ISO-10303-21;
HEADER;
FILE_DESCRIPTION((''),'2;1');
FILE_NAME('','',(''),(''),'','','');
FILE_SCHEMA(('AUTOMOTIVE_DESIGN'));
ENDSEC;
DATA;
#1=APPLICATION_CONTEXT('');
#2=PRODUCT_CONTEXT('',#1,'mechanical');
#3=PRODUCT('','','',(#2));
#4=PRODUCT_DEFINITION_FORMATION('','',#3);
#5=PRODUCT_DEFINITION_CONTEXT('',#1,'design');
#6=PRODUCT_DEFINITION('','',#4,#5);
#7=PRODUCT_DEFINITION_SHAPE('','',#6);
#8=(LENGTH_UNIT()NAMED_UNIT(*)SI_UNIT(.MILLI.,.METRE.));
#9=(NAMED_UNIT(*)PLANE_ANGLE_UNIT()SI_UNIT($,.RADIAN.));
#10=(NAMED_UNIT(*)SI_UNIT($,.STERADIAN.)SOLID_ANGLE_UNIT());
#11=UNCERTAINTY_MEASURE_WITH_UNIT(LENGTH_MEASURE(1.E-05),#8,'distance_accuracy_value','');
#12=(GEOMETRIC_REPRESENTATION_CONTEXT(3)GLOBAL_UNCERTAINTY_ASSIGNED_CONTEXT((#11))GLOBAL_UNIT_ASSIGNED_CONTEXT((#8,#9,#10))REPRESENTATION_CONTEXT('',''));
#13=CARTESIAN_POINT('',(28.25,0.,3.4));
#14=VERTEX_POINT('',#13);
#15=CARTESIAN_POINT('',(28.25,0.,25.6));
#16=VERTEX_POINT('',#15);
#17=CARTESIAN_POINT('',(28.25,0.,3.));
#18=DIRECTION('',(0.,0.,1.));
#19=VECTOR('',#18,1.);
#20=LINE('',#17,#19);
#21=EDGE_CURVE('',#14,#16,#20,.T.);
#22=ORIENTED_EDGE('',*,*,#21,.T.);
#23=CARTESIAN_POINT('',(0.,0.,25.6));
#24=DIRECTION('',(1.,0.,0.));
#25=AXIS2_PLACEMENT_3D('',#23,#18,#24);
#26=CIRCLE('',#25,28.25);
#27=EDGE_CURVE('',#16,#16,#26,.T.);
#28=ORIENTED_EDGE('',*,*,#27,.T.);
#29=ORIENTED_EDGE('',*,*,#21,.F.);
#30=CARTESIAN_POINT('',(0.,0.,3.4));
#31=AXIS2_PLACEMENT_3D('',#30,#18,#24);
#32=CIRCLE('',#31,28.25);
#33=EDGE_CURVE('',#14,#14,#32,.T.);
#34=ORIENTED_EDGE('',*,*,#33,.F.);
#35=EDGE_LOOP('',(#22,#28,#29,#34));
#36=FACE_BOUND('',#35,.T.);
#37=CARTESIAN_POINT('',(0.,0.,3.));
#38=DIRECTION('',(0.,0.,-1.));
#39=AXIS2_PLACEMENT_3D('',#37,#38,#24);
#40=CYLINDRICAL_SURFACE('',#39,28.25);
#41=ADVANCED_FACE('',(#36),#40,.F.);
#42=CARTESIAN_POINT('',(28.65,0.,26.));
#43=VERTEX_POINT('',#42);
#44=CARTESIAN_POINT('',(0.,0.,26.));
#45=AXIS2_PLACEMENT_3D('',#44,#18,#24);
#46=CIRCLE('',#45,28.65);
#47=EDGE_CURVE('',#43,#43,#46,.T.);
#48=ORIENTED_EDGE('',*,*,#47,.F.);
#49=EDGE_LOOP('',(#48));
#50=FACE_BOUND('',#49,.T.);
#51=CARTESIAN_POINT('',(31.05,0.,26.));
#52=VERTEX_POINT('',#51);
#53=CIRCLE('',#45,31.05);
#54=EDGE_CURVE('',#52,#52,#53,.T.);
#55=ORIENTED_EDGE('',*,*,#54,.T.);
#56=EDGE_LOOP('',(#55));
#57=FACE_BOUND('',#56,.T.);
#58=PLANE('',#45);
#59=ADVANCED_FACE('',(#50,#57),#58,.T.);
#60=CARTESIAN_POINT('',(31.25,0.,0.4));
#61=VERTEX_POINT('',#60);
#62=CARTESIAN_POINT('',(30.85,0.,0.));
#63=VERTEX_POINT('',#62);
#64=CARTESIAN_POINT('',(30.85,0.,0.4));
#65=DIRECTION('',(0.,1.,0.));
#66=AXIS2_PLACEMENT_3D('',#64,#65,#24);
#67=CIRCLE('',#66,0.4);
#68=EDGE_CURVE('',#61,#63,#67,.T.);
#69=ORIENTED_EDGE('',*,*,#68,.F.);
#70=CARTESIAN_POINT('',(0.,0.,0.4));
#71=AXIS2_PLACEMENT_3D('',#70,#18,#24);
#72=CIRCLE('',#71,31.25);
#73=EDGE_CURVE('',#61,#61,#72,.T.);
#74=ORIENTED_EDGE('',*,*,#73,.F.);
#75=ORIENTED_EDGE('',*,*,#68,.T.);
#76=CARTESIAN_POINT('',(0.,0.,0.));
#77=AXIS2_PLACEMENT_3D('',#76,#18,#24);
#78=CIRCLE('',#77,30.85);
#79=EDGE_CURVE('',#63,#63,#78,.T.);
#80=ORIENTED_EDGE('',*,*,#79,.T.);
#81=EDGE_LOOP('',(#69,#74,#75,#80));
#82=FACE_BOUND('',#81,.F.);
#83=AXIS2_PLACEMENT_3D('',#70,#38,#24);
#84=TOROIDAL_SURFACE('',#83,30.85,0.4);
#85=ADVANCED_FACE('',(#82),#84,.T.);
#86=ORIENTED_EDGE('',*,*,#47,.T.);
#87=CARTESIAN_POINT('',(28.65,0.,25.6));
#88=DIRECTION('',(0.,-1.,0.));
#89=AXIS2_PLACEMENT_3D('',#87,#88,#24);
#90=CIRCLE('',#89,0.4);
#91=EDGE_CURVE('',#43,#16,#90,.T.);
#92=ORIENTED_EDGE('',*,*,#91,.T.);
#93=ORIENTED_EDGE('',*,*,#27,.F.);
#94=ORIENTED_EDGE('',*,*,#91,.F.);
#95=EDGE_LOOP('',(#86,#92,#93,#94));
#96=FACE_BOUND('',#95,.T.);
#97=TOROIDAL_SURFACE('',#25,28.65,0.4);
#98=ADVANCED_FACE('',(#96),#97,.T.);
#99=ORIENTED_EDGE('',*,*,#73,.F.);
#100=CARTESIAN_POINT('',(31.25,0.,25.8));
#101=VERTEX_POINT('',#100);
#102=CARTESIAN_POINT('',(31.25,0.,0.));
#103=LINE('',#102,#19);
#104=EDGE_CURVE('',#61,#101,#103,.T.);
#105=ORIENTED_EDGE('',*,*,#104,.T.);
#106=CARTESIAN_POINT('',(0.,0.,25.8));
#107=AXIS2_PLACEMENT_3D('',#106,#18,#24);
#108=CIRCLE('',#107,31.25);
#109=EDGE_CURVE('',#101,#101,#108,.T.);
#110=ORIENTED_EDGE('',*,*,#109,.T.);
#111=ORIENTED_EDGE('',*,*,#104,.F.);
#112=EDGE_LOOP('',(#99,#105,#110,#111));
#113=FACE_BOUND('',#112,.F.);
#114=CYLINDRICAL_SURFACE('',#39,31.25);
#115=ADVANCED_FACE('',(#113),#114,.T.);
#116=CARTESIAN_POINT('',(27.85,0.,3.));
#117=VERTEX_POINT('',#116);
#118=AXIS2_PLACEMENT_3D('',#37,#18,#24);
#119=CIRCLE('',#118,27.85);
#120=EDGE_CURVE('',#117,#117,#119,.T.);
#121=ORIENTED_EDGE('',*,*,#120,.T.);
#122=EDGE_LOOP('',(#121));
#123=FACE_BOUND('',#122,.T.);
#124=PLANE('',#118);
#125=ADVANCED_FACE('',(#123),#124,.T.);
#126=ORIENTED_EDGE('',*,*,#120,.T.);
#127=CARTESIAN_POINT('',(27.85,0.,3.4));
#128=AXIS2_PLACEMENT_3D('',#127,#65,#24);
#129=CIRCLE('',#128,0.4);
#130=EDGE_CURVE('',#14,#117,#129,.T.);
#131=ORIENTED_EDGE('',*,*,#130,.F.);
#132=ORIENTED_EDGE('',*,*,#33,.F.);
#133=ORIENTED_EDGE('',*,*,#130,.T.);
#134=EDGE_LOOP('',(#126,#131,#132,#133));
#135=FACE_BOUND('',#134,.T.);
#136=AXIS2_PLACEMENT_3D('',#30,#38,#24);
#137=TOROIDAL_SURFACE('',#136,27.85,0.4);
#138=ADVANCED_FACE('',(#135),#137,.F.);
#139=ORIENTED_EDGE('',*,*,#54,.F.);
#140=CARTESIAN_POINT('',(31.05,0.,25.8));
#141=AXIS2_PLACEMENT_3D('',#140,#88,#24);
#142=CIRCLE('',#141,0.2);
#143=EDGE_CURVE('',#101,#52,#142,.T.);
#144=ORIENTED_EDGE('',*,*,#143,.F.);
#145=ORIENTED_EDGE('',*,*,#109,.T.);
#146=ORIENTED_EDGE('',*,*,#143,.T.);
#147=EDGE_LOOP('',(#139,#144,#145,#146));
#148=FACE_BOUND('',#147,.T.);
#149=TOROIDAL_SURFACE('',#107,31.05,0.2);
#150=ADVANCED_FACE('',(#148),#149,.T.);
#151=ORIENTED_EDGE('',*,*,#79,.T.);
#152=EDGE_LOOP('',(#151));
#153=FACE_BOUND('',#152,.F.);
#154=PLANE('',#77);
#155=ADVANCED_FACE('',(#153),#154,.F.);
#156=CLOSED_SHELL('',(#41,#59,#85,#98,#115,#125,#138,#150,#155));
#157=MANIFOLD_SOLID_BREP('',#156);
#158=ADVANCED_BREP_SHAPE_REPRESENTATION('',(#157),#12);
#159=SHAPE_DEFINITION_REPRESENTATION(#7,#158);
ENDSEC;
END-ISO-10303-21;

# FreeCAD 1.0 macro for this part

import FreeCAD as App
import Part
import Sketcher
from FreeCAD import Vector


def edges_at(feature, points):
    """Names of the edges that pass closest to the given points."""
    edges = feature.Shape.Edges
    near = lambda p: min(range(len(edges)), key=lambda i: edges[i].distToShape(Part.Vertex(*p))[0])
    return sorted({f"Edge{near(p) + 1}" for p in points})

doc = App.newDocument("Part")
body = doc.addObject("PartDesign::Body", "Body")

# Sketch on XY plane
sketch1 = doc.addObject("Sketcher::SketchObject", "Sketch")
body.addObject(sketch1)
sketch1.AttachmentSupport = (doc.XY_Plane, [""])
sketch1.MapMode = "FlatFace"
sketch1.addGeometry(Part.Circle(Vector(0, 0, 0), Vector(0, 0, 1), 31), False)
sketch1.addConstraint(Sketcher.Constraint("Coincident", 0, 3, -1, 1))
sketch1.addConstraint(Sketcher.Constraint("Diameter", 0, 62.5))
pad1 = doc.addObject("PartDesign::Pad", "Pad")
body.addObject(pad1)
pad1.Profile = sketch1
pad1.Length = 3

# Sketch on XY plane
sketch2 = doc.addObject("Sketcher::SketchObject", "Sketch001")
body.addObject(sketch2)
sketch2.AttachmentSupport = (doc.XY_Plane, [""])
sketch2.MapMode = "FlatFace"
sketch2.AttachmentOffset = App.Placement(Vector(0, 0, 3), App.Rotation())
sketch2.addGeometry(Part.Circle(Vector(0, 0, 0), Vector(0, 0, 1), 31), False)
sketch2.addGeometry(Part.Circle(Vector(0, 0, 0), Vector(0, 0, 1), 28), False)
sketch2.addConstraint(Sketcher.Constraint("Coincident", 0, 3, -1, 1))
sketch2.addConstraint(Sketcher.Constraint("Coincident", 1, 3, -1, 1))
sketch2.addConstraint(Sketcher.Constraint("Diameter", 0, 62.5))
sketch2.addConstraint(Sketcher.Constraint("Diameter", 1, 56.5))
pad2 = doc.addObject("PartDesign::Pad", "Pad001")
body.addObject(pad2)
pad2.Profile = sketch2
pad2.Length = 23
doc.recompute()

fillet = doc.addObject("PartDesign::Fillet", "Fillet")
body.addObject(fillet)
fillet.Base = (pad2, edges_at(pad2, [(-28.25, 0, 26), (-28.25, 0, 3), (-31.25, 0, 0)]))
fillet.Radius = 0.4
doc.recompute()

fillet2 = doc.addObject("PartDesign::Fillet", "Fillet001")
body.addObject(fillet2)
fillet2.Base = (fillet, edges_at(fillet, [(-31.25, 0, 26)]))
fillet2.Radius = 0.2

doc.recompute()
